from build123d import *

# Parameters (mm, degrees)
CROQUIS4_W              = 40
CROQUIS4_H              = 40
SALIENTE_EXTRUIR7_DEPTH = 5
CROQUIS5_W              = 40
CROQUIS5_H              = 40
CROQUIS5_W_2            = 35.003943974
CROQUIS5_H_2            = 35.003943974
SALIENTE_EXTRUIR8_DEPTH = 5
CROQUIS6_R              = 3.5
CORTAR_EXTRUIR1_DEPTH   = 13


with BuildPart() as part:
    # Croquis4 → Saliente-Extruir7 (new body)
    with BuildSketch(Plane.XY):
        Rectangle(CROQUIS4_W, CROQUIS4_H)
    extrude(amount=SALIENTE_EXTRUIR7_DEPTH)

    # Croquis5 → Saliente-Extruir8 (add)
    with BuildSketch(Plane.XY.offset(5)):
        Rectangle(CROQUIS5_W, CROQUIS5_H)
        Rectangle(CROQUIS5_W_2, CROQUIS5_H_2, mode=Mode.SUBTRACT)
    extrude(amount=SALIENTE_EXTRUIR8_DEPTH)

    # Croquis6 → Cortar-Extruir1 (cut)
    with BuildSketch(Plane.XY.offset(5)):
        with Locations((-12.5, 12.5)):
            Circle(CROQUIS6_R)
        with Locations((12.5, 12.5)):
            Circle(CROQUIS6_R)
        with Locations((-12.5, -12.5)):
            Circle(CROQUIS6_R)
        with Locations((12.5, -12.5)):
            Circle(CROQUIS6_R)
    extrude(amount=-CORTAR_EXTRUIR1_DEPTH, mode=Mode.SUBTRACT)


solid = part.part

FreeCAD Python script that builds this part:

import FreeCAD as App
import Part
import Sketcher
from FreeCAD import Vector

doc = App.newDocument("Part")
body = doc.addObject("PartDesign::Body", "Body")

sketch1 = body.newObject("Sketcher::SketchObject", "Sketch")
sketch1.AttachmentSupport = (doc.getObject("XY_Plane"), [""])
sketch1.MapMode = "FlatFace"
sketch1.addGeometry([
    Part.LineSegment(Vector(-20, 20, 0), Vector(-20, -20, 0)),
    Part.LineSegment(Vector(-20, -20, 0), Vector(20, -20, 0)),
    Part.LineSegment(Vector(20, -20, 0), Vector(20, 20, 0)),
    Part.LineSegment(Vector(20, 20, 0), Vector(-20, 20, 0)),
], False)
sketch1.addConstraint([
    Sketcher.Constraint("Coincident", 0, 2, 1, 1),
    Sketcher.Constraint("Coincident", 1, 2, 2, 1),
    Sketcher.Constraint("Coincident", 2, 2, 3, 1),
    Sketcher.Constraint("Coincident", 3, 2, 0, 1),
    Sketcher.Constraint("Vertical", 0),
    Sketcher.Constraint("Horizontal", 1),
    Sketcher.Constraint("Vertical", 2),
    Sketcher.Constraint("Horizontal", 3),
    Sketcher.Constraint("Symmetric", 0, 2, 2, 2, -1, 1),
    Sketcher.Constraint("Equal", 3, 0),
    Sketcher.Constraint("DistanceX", 1, 1, 1, 2, 40.0),
])
pad1 = body.newObject("PartDesign::Pad", "Pad")
pad1.Profile = sketch1
pad1.Length = 5

sketch2 = body.newObject("Sketcher::SketchObject", "Sketch001")
sketch2.AttachmentSupport = (doc.getObject("XY_Plane"), [""])
sketch2.MapMode = "FlatFace"
sketch2.AttachmentOffset = App.Placement(Vector(0, 0, 5), App.Rotation())
sketch2.addGeometry([
    Part.LineSegment(Vector(-20, 20, 0), Vector(-20, -20, 0)),
    Part.LineSegment(Vector(-20, -20, 0), Vector(20, -20, 0)),
    Part.LineSegment(Vector(20, -20, 0), Vector(20, 20, 0)),
    Part.LineSegment(Vector(20, 20, 0), Vector(-20, 20, 0)),
    Part.LineSegment(Vector(18, -18, 0), Vector(-18, -18, 0)),
    Part.LineSegment(Vector(-18, -18, 0), Vector(-18, 18, 0)),
    Part.LineSegment(Vector(-18, 18, 0), Vector(18, 18, 0)),
    Part.LineSegment(Vector(18, 18, 0), Vector(18, -18, 0)),
], False)
sketch2.addConstraint([
    Sketcher.Constraint("Coincident", 0, 2, 1, 1),
    Sketcher.Constraint("Coincident", 1, 2, 2, 1),
    Sketcher.Constraint("Coincident", 2, 2, 3, 1),
    Sketcher.Constraint("Coincident", 3, 2, 0, 1),
    Sketcher.Constraint("Coincident", 4, 2, 5, 1),
    Sketcher.Constraint("Coincident", 5, 2, 6, 1),
    Sketcher.Constraint("Coincident", 6, 2, 7, 1),
    Sketcher.Constraint("Coincident", 7, 2, 4, 1),
    Sketcher.Constraint("Vertical", 0),
    Sketcher.Constraint("Horizontal", 1),
    Sketcher.Constraint("Vertical", 2),
    Sketcher.Constraint("Horizontal", 3),
    Sketcher.Constraint("Horizontal", 4),
    Sketcher.Constraint("Vertical", 5),
    Sketcher.Constraint("Horizontal", 6),
    Sketcher.Constraint("Vertical", 7),
    Sketcher.Constraint("Symmetric", 0, 2, 2, 2, -1, 1),
    Sketcher.Constraint("Symmetric", 4, 2, 6, 2, -1, 1),
    Sketcher.Constraint("Equal", 3, 0),
    Sketcher.Constraint("Equal", 6, 5),
    Sketcher.Constraint("DistanceX", 1, 1, 1, 2, 40.0),
    Sketcher.Constraint("DistanceX", 4, 2, 4, 1, 35.003944),
])
pad2 = body.newObject("PartDesign::Pad", "Pad001")
pad2.Profile = sketch2
pad2.Length = 5

sketch3 = body.newObject("Sketcher::SketchObject", "Sketch002")
sketch3.AttachmentSupport = (doc.getObject("XY_Plane"), [""])
sketch3.MapMode = "FlatFace"
sketch3.AttachmentOffset = App.Placement(Vector(0, 0, 5), App.Rotation())
sketch3.addGeometry([
    Part.Circle(Vector(-12.5, 12.5, 0), Vector(0, 0, 1), 3.5),
    Part.Circle(Vector(12.5, 12.5, 0), Vector(0, 0, 1), 3.5),
    Part.Circle(Vector(-12.5, -12.5, 0), Vector(0, 0, 1), 3.5),
    Part.Circle(Vector(12.5, -12.5, 0), Vector(0, 0, 1), 3.5),
], False)
sketch3.addConstraint([
    Sketcher.Constraint("Equal", 0, 1),
    Sketcher.Constraint("Equal", 1, 2),
    Sketcher.Constraint("Equal", 2, 3),
    Sketcher.Constraint("Symmetric", 1, 3, 2, 3, -1, 1),
    Sketcher.Constraint("Symmetric", 0, 3, 3, 3, -1, 1),
    Sketcher.Constraint("Symmetric", 0, 3, 1, 3, -2),
    Sketcher.Constraint("Diameter", 0, 7.0),
    Sketcher.Constraint("DistanceX", 0, 3, 1, 3, 25.0),
    Sketcher.Constraint("DistanceY", 2, 3, 0, 3, 25.0),
])
pocket1 = body.newObject("PartDesign::Pocket", "Pocket")
pocket1.Profile = sketch3
pocket1.Length = 13

doc.recompute()
